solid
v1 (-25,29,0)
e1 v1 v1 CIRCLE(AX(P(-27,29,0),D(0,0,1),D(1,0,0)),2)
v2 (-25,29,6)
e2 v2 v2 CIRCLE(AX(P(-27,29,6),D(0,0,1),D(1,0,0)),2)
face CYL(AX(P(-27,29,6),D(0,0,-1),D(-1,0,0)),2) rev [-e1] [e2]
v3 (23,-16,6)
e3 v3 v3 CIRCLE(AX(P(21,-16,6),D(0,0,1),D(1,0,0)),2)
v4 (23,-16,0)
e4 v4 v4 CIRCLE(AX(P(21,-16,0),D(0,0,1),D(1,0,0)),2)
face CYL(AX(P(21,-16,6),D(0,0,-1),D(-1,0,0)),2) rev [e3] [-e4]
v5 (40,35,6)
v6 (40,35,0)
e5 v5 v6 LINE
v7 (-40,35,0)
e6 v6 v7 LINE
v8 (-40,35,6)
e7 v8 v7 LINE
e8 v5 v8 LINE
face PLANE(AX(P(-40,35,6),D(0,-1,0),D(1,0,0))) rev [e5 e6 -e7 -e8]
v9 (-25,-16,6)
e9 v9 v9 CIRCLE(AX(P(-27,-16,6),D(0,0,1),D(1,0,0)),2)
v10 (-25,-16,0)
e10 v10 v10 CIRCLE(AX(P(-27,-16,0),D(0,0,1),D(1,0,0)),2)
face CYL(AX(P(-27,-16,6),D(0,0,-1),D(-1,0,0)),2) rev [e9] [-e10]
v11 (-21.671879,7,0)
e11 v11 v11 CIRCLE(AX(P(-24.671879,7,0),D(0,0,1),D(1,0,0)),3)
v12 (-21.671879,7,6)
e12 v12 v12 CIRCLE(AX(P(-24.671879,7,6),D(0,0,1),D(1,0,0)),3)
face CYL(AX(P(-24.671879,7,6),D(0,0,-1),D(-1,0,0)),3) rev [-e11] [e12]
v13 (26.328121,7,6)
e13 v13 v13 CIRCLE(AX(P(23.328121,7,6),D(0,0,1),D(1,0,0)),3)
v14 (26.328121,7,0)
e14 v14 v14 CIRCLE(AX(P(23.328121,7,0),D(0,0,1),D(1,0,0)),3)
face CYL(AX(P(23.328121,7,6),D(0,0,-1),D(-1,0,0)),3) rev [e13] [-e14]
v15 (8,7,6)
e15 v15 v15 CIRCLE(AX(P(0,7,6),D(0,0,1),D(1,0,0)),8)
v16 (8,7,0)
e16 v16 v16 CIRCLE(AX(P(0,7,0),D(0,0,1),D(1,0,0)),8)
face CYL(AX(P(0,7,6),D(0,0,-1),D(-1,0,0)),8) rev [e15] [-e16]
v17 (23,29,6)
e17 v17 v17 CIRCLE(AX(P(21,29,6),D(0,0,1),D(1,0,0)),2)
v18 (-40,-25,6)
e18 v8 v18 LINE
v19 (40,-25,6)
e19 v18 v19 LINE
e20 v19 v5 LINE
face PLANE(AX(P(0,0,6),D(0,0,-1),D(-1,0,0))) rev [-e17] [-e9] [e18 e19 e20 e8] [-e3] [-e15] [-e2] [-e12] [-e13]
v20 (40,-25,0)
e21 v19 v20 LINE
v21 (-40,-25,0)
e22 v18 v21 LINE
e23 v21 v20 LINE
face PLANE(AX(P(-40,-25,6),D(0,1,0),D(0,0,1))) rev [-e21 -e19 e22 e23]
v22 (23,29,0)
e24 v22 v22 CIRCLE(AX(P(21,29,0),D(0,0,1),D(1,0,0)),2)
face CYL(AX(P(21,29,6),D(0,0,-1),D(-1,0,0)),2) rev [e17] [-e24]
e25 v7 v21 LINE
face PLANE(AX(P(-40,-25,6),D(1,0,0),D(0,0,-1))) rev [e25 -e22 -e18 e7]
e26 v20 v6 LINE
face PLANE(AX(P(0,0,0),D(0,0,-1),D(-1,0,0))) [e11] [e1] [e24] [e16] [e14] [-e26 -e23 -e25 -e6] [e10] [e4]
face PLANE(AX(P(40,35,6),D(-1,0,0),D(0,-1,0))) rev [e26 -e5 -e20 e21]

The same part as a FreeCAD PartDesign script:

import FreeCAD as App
import Part
import Sketcher

V = App.Vector
Q = App.Units.Quantity


def add_polygon(sketch, points):
    """Adds a closed chain of lines whose ends are joined by coincident constraints."""
    first, n = sketch.GeometryCount, len(points)
    for a, b in zip(points, points[1:] + points[:1]):
        sketch.addGeometry(Part.LineSegment(App.Vector(*a, 0), App.Vector(*b, 0)), False)
    for i in range(n):
        sketch.addConstraint(Sketcher.Constraint("Coincident", first + i, 2, first + (i + 1) % n, 1))

doc = App.newDocument("Part")
body = doc.addObject("PartDesign::Body", "Body")

# Sketch on XY plane
sketch1 = body.newObject("Sketcher::SketchObject", "Sketch")
sketch1.AttachmentSupport = (doc.getObject("XY_Plane"), [""])
sketch1.MapMode = "FlatFace"
add_polygon(sketch1, [(-40, 35), (-40, -25), (40, -25), (40, 35)])  # lines 0-3
sketch1.addGeometry(Part.Circle(V(-27, -16, 0), V(0, 0, 1), 2), False)  # 4
sketch1.addGeometry(Part.Circle(V(21, -16, 0), V(0, 0, 1), 2), False)  # 5
sketch1.addGeometry(Part.Circle(V(-24.7, 7, 0), V(0, 0, 1), 3), False)  # 6
sketch1.addGeometry(Part.Circle(V(-27, 29, 0), V(0, 0, 1), 2), False)  # 7
sketch1.addGeometry(Part.Circle(V(0, 7, 0), V(0, 0, 1), 8), False)  # 8
sketch1.addGeometry(Part.Circle(V(23.3, 7, 0), V(0, 0, 1), 3), False)  # 9
sketch1.addGeometry(Part.Circle(V(21, 29, 0), V(0, 0, 1), 2), False)  # 10
sketch1.addConstraint([
    Sketcher.Constraint("Vertical", 0),
    Sketcher.Constraint("Horizontal", 1),
    Sketcher.Constraint("Vertical", 2),
    Sketcher.Constraint("Horizontal", 3),
    Sketcher.Constraint("Equal", 4, 5),
    Sketcher.Constraint("Equal", 5, 7),
    Sketcher.Constraint("Equal", 6, 9),
    Sketcher.Constraint("Equal", 7, 10),
    Sketcher.Constraint("PointOnObject", 8, 3, -2),
    Sketcher.Constraint("Horizontal", 4, 3, 5, 3),
    Sketcher.Constraint("Horizontal", 6, 3, 8, 3),
    Sketcher.Constraint("Horizontal", 8, 3, 9, 3),
    Sketcher.Constraint("Horizontal", 7, 3, 10, 3),
    Sketcher.Constraint("Vertical", 4, 3, 7, 3),
    Sketcher.Constraint("Vertical", 5, 3, 10, 3),
    Sketcher.Constraint("Diameter", 4, Q("4 mm")),
    Sketcher.Constraint("Diameter", 6, Q("6 mm")),
    Sketcher.Constraint("Diameter", 8, Q("16 mm")),
    Sketcher.Constraint("DistanceX", 1, 1, 1, 2, Q("80 mm")),
    Sketcher.Constraint("DistanceY", 0, 2, 0, 1, Q("60 mm")),
    Sketcher.Constraint("DistanceX", 4, 3, -1, 1, Q("27 mm")),
    Sketcher.Constraint("DistanceY", 4, 3, -1, 1, Q("16 mm")),
    Sketcher.Constraint("DistanceX", -1, 1, 5, 3, Q("21 mm")),
    Sketcher.Constraint("DistanceY", -1, 1, 6, 3, Q("7 mm")),
    Sketcher.Constraint("DistanceY", -1, 1, 7, 3, Q("29 mm")),
    Sketcher.Constraint("DistanceX", 0, 2, -1, 1, Q("40 mm")),
    Sketcher.Constraint("DistanceY", 0, 2, -1, 1, Q("25 mm")),
    Sketcher.Constraint("DistanceX", 6, 3, 9, 3, Q("48 mm")),
    Sketcher.Constraint("DistanceX", 6, 3, -1, 1, Q("24.671879 mm")),
])
pad1 = body.newObject("PartDesign::Pad", "Pad")
pad1.Profile = sketch1
pad1.Length = 6

doc.recompute()
